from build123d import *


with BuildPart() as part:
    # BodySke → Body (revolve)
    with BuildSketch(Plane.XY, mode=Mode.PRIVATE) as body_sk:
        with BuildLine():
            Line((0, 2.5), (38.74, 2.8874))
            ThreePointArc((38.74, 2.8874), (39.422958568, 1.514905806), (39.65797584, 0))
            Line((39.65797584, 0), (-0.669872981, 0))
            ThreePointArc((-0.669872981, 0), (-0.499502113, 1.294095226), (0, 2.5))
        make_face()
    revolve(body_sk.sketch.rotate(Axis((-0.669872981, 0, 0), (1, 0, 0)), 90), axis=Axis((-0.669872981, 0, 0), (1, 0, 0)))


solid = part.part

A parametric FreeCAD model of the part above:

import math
import FreeCAD as App
import Part
import Sketcher
Q = App.Units.Quantity

doc = App.newDocument("Part")
body = doc.addObject("PartDesign::Body", "Body")

# Sketch on XY plane
sketch1 = body.newObject("Sketcher::SketchObject", "Sketch")
sketch1.AttachmentSupport = (doc.getObject("XY_Plane"), [""])
sketch1.MapMode = "FlatFace"
sketch1.addGeometry([
    Part.LineSegment(App.Vector(38.74, 2.8874, 0), App.Vector(0, 2.5, 0)),
    Part.ArcOfCircle(Part.Circle(App.Vector(4.330127, 0, 0), App.Vector(0, 0, 1), 5), math.radians(150), math.radians(180)),
    Part.LineSegment(App.Vector(-0.669873, 0, 0), App.Vector(39.657976, 0, 0)),
    Part.ArcOfCircle(Part.Circle(App.Vector(34.657976, 0, 0), App.Vector(0, 0, 1), 5), math.radians(0), math.radians(35.273494)),
], False)
sketch1.addConstraint([
    Sketcher.Constraint("Coincident", 0, 2, 1, 1),
    Sketcher.Constraint("Coincident", 1, 2, 2, 1),
    Sketcher.Constraint("Coincident", 2, 2, 3, 1),
    Sketcher.Constraint("Coincident", 3, 2, 0, 1),
    Sketcher.Constraint("Horizontal", 2),
    Sketcher.Constraint("Equal", 1, 3),
    Sketcher.Constraint("PointOnObject", 1, 3, -1),
    Sketcher.Constraint("PointOnObject", 3, 3, -1),
    Sketcher.Constraint("PointOnObject", 0, 2, -2),
    Sketcher.Constraint("PointOnObject", 1, 2, -1),
    Sketcher.Constraint("Radius", 1, Q("5 mm")),
    Sketcher.Constraint("DistanceY", -1, 1, 0, 2, Q("2.5 mm")),
    Sketcher.Constraint("DistanceX", -1, 1, 3, 2, Q("38.74 mm")),
    Sketcher.Constraint("DistanceX", 2, 1, 2, 2, Q("40.327849 mm")),
])
revolution = body.newObject("PartDesign::Revolution", "Revolution")
revolution.Profile = sketch1
revolution.ReferenceAxis = (sketch1, ["H_Axis"])
revolution.Angle = 360

doc.recompute()
